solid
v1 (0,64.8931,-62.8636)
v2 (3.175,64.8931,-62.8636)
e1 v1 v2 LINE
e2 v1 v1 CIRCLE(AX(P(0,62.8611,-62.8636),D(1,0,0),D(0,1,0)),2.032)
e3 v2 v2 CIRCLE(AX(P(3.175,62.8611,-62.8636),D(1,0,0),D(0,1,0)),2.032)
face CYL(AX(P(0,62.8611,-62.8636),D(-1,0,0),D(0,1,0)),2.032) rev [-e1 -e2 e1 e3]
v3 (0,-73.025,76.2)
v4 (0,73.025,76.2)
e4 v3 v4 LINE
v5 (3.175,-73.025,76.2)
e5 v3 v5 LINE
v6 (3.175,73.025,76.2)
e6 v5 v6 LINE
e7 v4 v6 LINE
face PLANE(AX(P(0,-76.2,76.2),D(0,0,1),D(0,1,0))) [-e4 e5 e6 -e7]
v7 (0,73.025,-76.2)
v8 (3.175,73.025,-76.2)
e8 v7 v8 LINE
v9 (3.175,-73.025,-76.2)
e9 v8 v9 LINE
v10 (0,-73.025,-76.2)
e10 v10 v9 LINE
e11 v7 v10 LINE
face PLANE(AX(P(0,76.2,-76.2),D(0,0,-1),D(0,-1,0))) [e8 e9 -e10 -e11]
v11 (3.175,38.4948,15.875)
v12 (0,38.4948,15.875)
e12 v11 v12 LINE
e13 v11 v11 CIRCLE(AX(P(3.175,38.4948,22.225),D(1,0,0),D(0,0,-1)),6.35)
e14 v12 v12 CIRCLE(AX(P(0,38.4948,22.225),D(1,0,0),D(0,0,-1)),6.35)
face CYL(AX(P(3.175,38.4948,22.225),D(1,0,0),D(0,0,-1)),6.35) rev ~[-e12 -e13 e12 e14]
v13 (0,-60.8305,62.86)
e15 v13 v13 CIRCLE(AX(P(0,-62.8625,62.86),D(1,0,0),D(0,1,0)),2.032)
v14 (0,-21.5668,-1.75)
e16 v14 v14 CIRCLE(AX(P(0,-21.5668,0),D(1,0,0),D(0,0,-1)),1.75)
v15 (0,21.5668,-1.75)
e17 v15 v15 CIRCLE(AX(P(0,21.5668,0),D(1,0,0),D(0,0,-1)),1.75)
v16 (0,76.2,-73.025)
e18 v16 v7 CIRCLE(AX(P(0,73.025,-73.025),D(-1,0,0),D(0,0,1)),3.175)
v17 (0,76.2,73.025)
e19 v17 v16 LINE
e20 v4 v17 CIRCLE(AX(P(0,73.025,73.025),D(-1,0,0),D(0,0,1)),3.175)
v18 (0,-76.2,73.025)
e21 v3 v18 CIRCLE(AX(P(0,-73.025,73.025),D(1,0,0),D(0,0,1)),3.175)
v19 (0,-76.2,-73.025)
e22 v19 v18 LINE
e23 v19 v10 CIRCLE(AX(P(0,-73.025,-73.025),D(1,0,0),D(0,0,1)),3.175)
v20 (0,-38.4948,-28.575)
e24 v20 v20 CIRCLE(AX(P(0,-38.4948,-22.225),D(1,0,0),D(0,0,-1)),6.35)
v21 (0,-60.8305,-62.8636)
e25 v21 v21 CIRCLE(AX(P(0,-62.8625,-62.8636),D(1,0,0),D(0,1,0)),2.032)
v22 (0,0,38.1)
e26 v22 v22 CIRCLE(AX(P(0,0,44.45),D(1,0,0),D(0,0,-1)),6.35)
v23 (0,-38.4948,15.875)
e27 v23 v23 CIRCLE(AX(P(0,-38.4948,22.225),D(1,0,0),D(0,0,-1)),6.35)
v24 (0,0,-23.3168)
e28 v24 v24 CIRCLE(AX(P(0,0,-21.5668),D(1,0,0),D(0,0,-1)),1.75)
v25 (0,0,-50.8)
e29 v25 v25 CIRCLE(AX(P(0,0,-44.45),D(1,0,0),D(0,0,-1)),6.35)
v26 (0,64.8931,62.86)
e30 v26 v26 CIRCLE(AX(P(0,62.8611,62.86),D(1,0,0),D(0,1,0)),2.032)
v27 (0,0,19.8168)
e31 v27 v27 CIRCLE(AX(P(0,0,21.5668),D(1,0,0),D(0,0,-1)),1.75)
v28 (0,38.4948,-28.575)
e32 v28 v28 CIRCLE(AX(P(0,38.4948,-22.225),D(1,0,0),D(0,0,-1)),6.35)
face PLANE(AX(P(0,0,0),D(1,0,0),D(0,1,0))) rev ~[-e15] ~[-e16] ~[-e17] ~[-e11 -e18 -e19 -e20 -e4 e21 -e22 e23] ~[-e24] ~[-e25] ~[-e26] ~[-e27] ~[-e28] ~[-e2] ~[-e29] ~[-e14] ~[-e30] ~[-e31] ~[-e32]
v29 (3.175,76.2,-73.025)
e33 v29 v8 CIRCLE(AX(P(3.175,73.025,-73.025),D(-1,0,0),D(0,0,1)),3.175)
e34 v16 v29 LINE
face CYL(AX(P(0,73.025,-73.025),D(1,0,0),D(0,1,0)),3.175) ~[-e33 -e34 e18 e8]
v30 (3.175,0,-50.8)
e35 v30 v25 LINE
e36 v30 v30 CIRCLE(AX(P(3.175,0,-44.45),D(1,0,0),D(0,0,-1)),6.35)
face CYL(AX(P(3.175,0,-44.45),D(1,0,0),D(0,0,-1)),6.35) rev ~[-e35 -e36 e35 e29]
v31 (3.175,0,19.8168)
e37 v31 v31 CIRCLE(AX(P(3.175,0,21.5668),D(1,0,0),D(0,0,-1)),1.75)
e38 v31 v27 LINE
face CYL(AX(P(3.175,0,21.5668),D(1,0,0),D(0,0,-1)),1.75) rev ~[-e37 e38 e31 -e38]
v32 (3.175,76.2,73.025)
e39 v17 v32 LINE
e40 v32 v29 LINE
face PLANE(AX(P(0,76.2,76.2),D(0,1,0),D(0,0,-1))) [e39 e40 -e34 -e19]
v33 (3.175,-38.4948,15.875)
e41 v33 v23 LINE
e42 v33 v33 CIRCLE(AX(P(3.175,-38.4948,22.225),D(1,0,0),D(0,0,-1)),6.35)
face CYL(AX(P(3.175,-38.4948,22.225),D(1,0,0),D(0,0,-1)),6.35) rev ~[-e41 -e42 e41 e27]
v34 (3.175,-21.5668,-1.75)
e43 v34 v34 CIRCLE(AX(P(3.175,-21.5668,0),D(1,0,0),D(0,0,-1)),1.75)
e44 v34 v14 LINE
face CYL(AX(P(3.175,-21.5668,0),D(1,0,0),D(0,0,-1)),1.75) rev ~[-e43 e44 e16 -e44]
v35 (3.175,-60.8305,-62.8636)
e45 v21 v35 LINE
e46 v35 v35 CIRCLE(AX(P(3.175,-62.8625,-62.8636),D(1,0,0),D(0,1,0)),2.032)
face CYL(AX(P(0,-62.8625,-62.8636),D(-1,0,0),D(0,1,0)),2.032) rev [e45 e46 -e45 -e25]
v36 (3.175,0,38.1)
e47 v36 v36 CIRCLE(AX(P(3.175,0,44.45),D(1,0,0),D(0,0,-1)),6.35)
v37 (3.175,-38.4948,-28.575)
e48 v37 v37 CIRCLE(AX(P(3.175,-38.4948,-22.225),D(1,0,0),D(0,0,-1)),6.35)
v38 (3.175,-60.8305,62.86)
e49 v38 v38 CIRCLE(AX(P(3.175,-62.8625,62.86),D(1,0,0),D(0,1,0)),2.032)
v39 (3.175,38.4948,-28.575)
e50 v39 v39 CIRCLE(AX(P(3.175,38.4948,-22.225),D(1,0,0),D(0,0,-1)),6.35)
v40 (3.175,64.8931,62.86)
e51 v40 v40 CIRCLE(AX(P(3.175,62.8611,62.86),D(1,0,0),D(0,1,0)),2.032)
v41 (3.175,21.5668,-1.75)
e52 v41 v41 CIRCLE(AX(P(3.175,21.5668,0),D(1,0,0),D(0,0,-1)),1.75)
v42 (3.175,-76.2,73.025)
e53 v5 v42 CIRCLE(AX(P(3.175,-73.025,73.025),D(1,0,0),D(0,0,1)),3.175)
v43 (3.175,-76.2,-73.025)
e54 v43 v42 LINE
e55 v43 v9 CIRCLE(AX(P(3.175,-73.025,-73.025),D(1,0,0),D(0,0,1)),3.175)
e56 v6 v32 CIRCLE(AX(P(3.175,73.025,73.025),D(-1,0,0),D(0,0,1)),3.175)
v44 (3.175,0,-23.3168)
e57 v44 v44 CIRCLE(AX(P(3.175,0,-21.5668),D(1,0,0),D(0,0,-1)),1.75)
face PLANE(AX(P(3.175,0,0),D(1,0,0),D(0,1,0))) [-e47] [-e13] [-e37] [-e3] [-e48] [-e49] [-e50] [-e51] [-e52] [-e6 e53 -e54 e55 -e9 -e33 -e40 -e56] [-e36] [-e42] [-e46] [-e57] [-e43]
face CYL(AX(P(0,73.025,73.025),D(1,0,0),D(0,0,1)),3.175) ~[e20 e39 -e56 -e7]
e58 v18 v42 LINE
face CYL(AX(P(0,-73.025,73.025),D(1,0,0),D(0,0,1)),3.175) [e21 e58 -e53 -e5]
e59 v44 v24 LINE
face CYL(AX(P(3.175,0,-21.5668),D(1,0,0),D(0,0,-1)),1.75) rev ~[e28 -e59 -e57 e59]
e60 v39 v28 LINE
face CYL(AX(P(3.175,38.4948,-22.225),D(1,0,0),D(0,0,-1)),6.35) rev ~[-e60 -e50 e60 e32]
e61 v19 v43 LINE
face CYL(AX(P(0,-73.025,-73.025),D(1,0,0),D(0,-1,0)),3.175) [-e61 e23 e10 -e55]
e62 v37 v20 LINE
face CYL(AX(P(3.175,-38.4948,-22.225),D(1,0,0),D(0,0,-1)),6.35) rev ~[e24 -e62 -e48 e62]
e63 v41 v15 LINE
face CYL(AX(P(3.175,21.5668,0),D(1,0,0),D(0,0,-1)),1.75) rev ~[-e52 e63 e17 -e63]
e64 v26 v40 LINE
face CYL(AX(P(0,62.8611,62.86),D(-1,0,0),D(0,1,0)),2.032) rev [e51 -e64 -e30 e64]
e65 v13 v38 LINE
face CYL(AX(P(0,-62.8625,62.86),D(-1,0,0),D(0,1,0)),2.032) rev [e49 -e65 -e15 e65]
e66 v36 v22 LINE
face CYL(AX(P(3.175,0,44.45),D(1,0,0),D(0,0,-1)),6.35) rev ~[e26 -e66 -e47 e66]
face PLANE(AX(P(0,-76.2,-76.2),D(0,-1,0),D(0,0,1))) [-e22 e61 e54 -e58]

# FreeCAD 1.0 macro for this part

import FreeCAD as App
import Part
import Sketcher
Q = App.Units.Quantity


def edges_at(feature, points):
    """Names of the edges that pass closest to the given points."""
    edges = feature.Shape.Edges
    near = lambda p: min(range(len(edges)), key=lambda i: edges[i].distToShape(Part.Vertex(*p))[0])
    return sorted({f"Edge{near(p) + 1}" for p in points})

doc = App.newDocument("Part")
params = doc.addObject("Spreadsheet::Sheet", "Params")
for row, (alias, value) in enumerate([
    ("sketch1_width", "6 in"),
    ("sketch1_diameter", "0.16 in"),
    ("pad1_length", "0.125 in"),
    ("fillet_radius", "0.125 in"),
    ("sketch2_diameter", "0.5 in"),
    ("pocket1_length", "1 in"),
    ("pocket2_length", "1 in"),
], start=1):
    params.set(f"A{row}", alias)
    params.set(f"B{row}", "=" + value)
    params.setAlias(f"B{row}", alias)

body = doc.addObject("PartDesign::Body", "Body")

sketch1 = body.newObject("Sketcher::SketchObject", "Sketch")
sketch1.AttachmentSupport = (doc.getObject("YZ_Plane"), [""])
sketch1.MapMode = "FlatFace"
sketch1.addGeometry(Part.LineSegment(App.Vector(76.2, 76.2, 0), App.Vector(-76.2, 76.2, 0)), False)
sketch1.addGeometry(Part.LineSegment(App.Vector(-76.2, 76.2, 0), App.Vector(-76.2, -76.2, 0)), False)
sketch1.addGeometry(Part.LineSegment(App.Vector(-76.2, -76.2, 0), App.Vector(76.2, -76.2, 0)), False)
sketch1.addGeometry(Part.LineSegment(App.Vector(76.2, -76.2, 0), App.Vector(76.2, 76.2, 0)), False)
sketch1.addGeometry(Part.Circle(App.Vector(-62.9, -62.9, 0), App.Vector(0, 0, 1), 2), False)
sketch1.addGeometry(Part.Circle(App.Vector(62.9, -62.9, 0), App.Vector(0, 0, 1), 2), False)
sketch1.addGeometry(Part.Circle(App.Vector(-62.9, 62.9, 0), App.Vector(0, 0, 1), 2), False)
sketch1.addGeometry(Part.Circle(App.Vector(62.9, 62.9, 0), App.Vector(0, 0, 1), 2), False)
sketch1.addConstraint(Sketcher.Constraint("Coincident", 0, 2, 1, 1))
sketch1.addConstraint(Sketcher.Constraint("Coincident", 1, 2, 2, 1))
sketch1.addConstraint(Sketcher.Constraint("Coincident", 2, 2, 3, 1))
sketch1.addConstraint(Sketcher.Constraint("Coincident", 3, 2, 0, 1))
sketch1.addConstraint(Sketcher.Constraint("Horizontal", 0))
sketch1.addConstraint(Sketcher.Constraint("Vertical", 1))
sketch1.addConstraint(Sketcher.Constraint("Horizontal", 2))
sketch1.addConstraint(Sketcher.Constraint("Vertical", 3))
sketch1.addConstraint(Sketcher.Constraint("Equal", 4, 5))
sketch1.addConstraint(Sketcher.Constraint("Equal", 5, 6))
sketch1.addConstraint(Sketcher.Constraint("Equal", 6, 7))
sketch1.addConstraint(Sketcher.Constraint("Symmetric", 0, 2, 2, 2, -1, 1))
sketch1.addConstraint(Sketcher.Constraint("Horizontal", 4, 3, 5, 3))
sketch1.addConstraint(Sketcher.Constraint("Horizontal", 6, 3, 7, 3))
sketch1.addConstraint(Sketcher.Constraint("Vertical", 4, 3, 6, 3))
sketch1.addConstraint(Sketcher.Constraint("Vertical", 5, 3, 7, 3))
sketch1.addConstraint(Sketcher.Constraint("Equal", 2, 1))
sketch1.addConstraint(Sketcher.Constraint("DistanceX", 0, 2, 0, 1, Q("6 in")))
sketch1.addConstraint(Sketcher.Constraint("Diameter", 4, Q("0.16 in")))
sketch1.addConstraint(Sketcher.Constraint("DistanceX", 4, 3, -1, 1, Q("2.4749 in")))
sketch1.addConstraint(Sketcher.Constraint("DistanceY", -1, 1, 6, 3, Q("2.4748 in")))
sketch1.addConstraint(Sketcher.Constraint("DistanceY", 4, 3, -1, 1, Q("62.8636 mm")))
sketch1.addConstraint(Sketcher.Constraint("DistanceX", -1, 1, 5, 3, Q("62.861 mm")))
sketch1.setExpression("Constraints[17]", "Params.sketch1_width")
sketch1.setExpression("Constraints[18]", "Params.sketch1_diameter")
pad1 = body.newObject("PartDesign::Pad", "Pad")
pad1.Profile = sketch1
pad1.setExpression("Length", "Params.pad1_length")
doc.recompute()

fillet = body.newObject("PartDesign::Fillet", "Fillet")
fillet.Base = (pad1, edges_at(pad1, [
    (1.587, 76.2, 76.2),
    (1.587, 76.2, -76.2),
    (1.587, -76.2, 76.2),
    (1.587, -76.2, -76.2),
]))
fillet.setExpression("Radius", "Params.fillet_radius")

sketch2 = body.newObject("Sketcher::SketchObject", "Sketch001")
sketch2.AttachmentSupport = (doc.getObject("YZ_Plane"), [""])
sketch2.MapMode = "FlatFace"
sketch2.AttachmentOffset = App.Placement(App.Vector(0, 0, 0.125 * 25.4), App.Rotation())
sketch2.addGeometry(Part.Circle(App.Vector(-38, 22, 0), App.Vector(0, 0, 1), 6), False)
sketch2.addGeometry(Part.Circle(App.Vector(0, 44, 0), App.Vector(0, 0, 1), 6), False)
sketch2.addGeometry(Part.Circle(App.Vector(-38, -22, 0), App.Vector(0, 0, 1), 6), False)
sketch2.addGeometry(Part.Circle(App.Vector(38, 22, 0), App.Vector(0, 0, 1), 6), False)
sketch2.addGeometry(Part.Circle(App.Vector(38, -22, 0), App.Vector(0, 0, 1), 6), False)
sketch2.addGeometry(Part.Circle(App.Vector(0, -44, 0), App.Vector(0, 0, 1), 6), False)
sketch2.addConstraint(Sketcher.Constraint("Equal", 0, 1))
sketch2.addConstraint(Sketcher.Constraint("Equal", 1, 2))
sketch2.addConstraint(Sketcher.Constraint("Equal", 2, 3))
sketch2.addConstraint(Sketcher.Constraint("Equal", 3, 4))
sketch2.addConstraint(Sketcher.Constraint("Equal", 4, 5))
sketch2.addConstraint(Sketcher.Constraint("Symmetric", 2, 3, 3, 3, -1, 1))
sketch2.addConstraint(Sketcher.Constraint("Symmetric", 0, 3, 4, 3, -1, 1))
sketch2.addConstraint(Sketcher.Constraint("Symmetric", 1, 3, 5, 3, -1, 1))
sketch2.addConstraint(Sketcher.Constraint("Symmetric", 0, 3, 3, 3, -2))
sketch2.addConstraint(Sketcher.Constraint("PointOnObject", 1, 3, -2))
sketch2.addConstraint(Sketcher.Constraint("Diameter", 0, Q("0.5 in")))
sketch2.addConstraint(Sketcher.Constraint("DistanceY", 5, 3, 1, 3, Q("3.5 in")))
sketch2.addConstraint(Sketcher.Constraint("DistanceY", 2, 3, 0, 3, Q("1.75 in")))
sketch2.addConstraint(Sketcher.Constraint("DistanceX", 0, 3, -1, 1, Q("38.4948 mm")))
sketch2.setExpression("Constraints[10]", "Params.sketch2_diameter")
pocket1 = body.newObject("PartDesign::Pocket", "Pocket")
pocket1.Profile = sketch2
pocket1.setExpression("Length", "Params.pocket1_length")

sketch3 = body.newObject("Sketcher::SketchObject", "Sketch002")
sketch3.AttachmentSupport = (doc.getObject("YZ_Plane"), [""])
sketch3.MapMode = "FlatFace"
sketch3.AttachmentOffset = App.Placement(App.Vector(0, 0, 0.125 * 25.4), App.Rotation())
sketch3.addGeometry(Part.Circle(App.Vector(0, -21.6, 0), App.Vector(0, 0, 1), 1.8), False)
sketch3.addGeometry(Part.Circle(App.Vector(-21.6, 0, 0), App.Vector(0, 0, 1), 1.8), False)
sketch3.addGeometry(Part.Circle(App.Vector(0, 21.6, 0), App.Vector(0, 0, 1), 1.8), False)
sketch3.addGeometry(Part.Circle(App.Vector(21.6, 0, 0), App.Vector(0, 0, 1), 1.8), False)
sketch3.addConstraint(Sketcher.Constraint("Equal", 0, 1))
sketch3.addConstraint(Sketcher.Constraint("Equal", 1, 2))
sketch3.addConstraint(Sketcher.Constraint("Equal", 2, 3))
sketch3.addConstraint(Sketcher.Constraint("Symmetric", 0, 3, 2, 3, -1, 1))
sketch3.addConstraint(Sketcher.Constraint("Symmetric", 1, 3, 3, 3, -1, 1))
sketch3.addConstraint(Sketcher.Constraint("PointOnObject", 0, 3, -2))
sketch3.addConstraint(Sketcher.Constraint("PointOnObject", 1, 3, -1))
sketch3.addConstraint(Sketcher.Constraint("Diameter", 0, Q("0.1378 in")))
sketch3.addConstraint(Sketcher.Constraint("DistanceY", 0, 3, -1, 1, Q("21.5668 mm")))
sketch3.addConstraint(Sketcher.Constraint("DistanceX", 1, 3, -1, 1, Q("21.5668 mm")))
pocket2 = body.newObject("PartDesign::Pocket", "Pocket001")
pocket2.Profile = sketch3
pocket2.setExpression("Length", "Params.pocket2_length")

doc.recompute()
